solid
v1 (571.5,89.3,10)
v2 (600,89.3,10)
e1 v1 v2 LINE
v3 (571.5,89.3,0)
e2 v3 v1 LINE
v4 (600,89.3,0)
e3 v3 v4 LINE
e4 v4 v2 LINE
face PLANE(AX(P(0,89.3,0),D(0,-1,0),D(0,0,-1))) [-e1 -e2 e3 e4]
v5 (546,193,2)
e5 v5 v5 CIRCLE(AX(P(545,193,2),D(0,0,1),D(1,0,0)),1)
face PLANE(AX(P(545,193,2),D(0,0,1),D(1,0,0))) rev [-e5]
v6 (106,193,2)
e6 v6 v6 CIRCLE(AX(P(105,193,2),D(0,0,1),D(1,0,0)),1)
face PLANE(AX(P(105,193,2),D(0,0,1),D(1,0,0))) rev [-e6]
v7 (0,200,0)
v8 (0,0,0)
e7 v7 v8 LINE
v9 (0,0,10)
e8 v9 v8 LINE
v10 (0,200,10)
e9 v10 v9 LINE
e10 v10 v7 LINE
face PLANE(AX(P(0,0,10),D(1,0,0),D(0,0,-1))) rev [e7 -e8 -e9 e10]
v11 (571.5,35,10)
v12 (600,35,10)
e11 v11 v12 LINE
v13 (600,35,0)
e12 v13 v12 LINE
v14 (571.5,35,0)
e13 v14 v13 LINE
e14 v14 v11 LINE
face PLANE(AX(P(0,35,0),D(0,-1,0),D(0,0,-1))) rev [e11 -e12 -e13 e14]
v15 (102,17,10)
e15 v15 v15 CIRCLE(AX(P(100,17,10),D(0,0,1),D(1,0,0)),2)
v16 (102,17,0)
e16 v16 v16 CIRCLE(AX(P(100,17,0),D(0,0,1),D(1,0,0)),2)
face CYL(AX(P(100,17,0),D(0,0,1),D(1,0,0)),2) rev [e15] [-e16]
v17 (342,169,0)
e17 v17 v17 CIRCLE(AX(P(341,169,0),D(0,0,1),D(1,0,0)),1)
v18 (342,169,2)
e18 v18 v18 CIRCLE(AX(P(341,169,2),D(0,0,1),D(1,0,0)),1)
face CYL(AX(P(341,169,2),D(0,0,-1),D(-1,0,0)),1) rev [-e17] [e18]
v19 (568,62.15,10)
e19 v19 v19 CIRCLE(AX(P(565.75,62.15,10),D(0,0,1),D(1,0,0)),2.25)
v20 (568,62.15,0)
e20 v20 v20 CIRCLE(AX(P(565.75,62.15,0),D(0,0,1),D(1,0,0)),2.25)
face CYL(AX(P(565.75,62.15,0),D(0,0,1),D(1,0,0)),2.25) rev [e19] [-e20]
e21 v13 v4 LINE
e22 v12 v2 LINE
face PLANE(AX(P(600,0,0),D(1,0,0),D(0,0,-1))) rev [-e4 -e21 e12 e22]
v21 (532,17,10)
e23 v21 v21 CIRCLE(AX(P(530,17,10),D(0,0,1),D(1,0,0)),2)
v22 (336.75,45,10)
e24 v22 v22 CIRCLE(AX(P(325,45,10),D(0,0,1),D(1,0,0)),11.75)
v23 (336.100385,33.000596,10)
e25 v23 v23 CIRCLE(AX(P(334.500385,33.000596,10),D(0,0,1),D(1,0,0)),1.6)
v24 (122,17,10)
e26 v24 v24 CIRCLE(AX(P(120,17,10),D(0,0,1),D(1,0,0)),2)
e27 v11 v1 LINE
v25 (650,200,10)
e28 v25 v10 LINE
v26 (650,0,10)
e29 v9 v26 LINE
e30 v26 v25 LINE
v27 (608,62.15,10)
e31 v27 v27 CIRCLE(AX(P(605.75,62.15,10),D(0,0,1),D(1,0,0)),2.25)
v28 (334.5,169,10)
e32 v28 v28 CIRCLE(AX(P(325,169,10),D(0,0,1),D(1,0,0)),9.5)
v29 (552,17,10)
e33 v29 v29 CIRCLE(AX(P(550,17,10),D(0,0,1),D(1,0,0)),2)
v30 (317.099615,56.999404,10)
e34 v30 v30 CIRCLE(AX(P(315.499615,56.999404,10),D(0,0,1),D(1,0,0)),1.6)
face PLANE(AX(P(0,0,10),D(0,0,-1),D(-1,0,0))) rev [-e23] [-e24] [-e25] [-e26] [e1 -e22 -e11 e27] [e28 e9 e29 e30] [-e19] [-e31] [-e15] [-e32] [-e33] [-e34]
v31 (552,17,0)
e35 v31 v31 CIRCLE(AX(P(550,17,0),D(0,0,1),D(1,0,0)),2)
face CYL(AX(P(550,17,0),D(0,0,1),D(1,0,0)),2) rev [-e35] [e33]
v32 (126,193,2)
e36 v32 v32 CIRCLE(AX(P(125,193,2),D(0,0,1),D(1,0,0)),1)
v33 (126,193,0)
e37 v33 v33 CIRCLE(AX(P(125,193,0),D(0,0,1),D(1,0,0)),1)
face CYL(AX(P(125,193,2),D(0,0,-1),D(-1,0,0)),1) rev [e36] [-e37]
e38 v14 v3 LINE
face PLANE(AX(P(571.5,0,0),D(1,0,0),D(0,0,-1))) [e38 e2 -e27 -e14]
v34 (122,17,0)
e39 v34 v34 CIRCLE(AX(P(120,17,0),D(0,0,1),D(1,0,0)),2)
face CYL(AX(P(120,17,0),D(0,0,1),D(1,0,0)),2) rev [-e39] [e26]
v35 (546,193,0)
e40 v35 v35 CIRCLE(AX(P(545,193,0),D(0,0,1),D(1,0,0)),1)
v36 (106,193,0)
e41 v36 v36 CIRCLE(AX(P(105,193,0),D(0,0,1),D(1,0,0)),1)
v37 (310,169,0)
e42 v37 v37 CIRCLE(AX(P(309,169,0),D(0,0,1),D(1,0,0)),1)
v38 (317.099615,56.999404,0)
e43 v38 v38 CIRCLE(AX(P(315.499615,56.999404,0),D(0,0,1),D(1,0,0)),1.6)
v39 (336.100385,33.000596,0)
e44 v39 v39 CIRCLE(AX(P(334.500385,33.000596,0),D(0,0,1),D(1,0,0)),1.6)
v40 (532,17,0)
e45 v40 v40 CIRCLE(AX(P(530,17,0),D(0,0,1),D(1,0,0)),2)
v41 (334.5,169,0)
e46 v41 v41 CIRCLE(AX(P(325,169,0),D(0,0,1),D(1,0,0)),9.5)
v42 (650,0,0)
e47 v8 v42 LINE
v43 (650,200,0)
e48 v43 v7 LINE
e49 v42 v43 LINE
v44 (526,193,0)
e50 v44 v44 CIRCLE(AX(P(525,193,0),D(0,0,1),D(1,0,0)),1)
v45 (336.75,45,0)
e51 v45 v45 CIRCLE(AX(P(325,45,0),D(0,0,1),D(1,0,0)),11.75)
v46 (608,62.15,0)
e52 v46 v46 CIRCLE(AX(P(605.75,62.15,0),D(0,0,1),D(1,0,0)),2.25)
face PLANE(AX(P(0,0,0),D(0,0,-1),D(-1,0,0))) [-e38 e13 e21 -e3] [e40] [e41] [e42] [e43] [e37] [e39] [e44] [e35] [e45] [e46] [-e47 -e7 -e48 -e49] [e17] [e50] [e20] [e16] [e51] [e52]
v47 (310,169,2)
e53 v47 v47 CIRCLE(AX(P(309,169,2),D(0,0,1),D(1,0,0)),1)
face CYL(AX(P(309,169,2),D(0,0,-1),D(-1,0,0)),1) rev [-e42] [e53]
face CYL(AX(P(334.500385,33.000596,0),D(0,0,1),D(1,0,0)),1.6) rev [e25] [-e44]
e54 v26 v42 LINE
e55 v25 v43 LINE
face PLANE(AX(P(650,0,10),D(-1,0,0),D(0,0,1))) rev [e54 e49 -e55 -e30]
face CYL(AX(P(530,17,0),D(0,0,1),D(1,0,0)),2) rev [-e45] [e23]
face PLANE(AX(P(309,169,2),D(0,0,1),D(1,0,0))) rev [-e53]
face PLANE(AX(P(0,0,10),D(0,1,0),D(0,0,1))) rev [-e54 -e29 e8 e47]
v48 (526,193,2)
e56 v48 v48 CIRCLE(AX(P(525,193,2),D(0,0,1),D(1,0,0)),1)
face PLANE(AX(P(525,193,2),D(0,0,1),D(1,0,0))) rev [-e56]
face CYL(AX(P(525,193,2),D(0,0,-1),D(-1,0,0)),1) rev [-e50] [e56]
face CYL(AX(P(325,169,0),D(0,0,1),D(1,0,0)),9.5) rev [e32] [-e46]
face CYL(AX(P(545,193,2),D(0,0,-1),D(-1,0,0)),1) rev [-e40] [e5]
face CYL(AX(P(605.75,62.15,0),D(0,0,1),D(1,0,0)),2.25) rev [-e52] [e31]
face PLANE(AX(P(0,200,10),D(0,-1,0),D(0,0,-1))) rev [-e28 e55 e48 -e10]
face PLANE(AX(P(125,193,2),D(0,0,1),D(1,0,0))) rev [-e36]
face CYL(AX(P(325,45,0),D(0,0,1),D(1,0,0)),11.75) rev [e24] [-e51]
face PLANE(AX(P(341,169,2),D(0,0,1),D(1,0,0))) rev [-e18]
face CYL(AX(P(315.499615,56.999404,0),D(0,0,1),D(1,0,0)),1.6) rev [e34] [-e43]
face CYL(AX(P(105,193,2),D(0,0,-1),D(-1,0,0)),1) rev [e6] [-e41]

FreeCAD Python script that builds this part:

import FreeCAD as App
import Part
import Sketcher
from FreeCAD import Vector
Q = App.Units.Quantity

doc = App.newDocument("Part")
body = doc.addObject("PartDesign::Body", "Body")

sketch1 = doc.addObject("Sketcher::SketchObject", "Sketch")
body.addObject(sketch1)
sketch1.AttachmentSupport = (doc.XY_Plane, [""])
sketch1.MapMode = "FlatFace"
sketch1.addGeometry([
    Part.LineSegment(Vector(0, 200, 0), Vector(0, 0, 0)),
    Part.LineSegment(Vector(0, 0, 0), Vector(650, 0, 0)),
    Part.LineSegment(Vector(650, 0, 0), Vector(650, 200, 0)),
    Part.LineSegment(Vector(650, 200, 0), Vector(0, 200, 0)),
], False)
sketch1.addConstraint([
    Sketcher.Constraint("Coincident", 0, 2, 1, 1),
    Sketcher.Constraint("Coincident", 1, 2, 2, 1),
    Sketcher.Constraint("Coincident", 2, 2, 3, 1),
    Sketcher.Constraint("Coincident", 3, 2, 0, 1),
    Sketcher.Constraint("Vertical", 0),
    Sketcher.Constraint("Horizontal", 1),
    Sketcher.Constraint("Vertical", 2),
    Sketcher.Constraint("Horizontal", 3),
    Sketcher.Constraint("Coincident", 0, 2, -1, 1),
    Sketcher.Constraint("DistanceX", 1, 1, 1, 2, Q("650 mm")),
    Sketcher.Constraint("DistanceY", 0, 2, 0, 1, Q("200 mm")),
])
pad1 = doc.addObject("PartDesign::Pad", "Pad")
body.addObject(pad1)
pad1.Profile = sketch1
pad1.Length = 10

sketch2 = doc.addObject("Sketcher::SketchObject", "Sketch001")
body.addObject(sketch2)
sketch2.AttachmentSupport = (doc.XY_Plane, [""])
sketch2.MapMode = "FlatFace"
sketch2.AttachmentOffset = App.Placement(Vector(0, 0, 10), App.Rotation())
sketch2.addGeometry([
    Part.Circle(Vector(100, 17, 0), Vector(0, 0, 1), 2),
    Part.Circle(Vector(120, 17, 0), Vector(0, 0, 1), 2),
    Part.Circle(Vector(530, 17, 0), Vector(0, 0, 1), 2),
    Part.Circle(Vector(550, 17, 0), Vector(0, 0, 1), 2),
], False)
sketch2.addConstraint([
    Sketcher.Constraint("Equal", 0, 1),
    Sketcher.Constraint("Equal", 1, 2),
    Sketcher.Constraint("Equal", 2, 3),
    Sketcher.Constraint("Horizontal", 0, 3, 1, 3),
    Sketcher.Constraint("Horizontal", 1, 3, 2, 3),
    Sketcher.Constraint("Horizontal", 2, 3, 3, 3),
    Sketcher.Constraint("Diameter", 0, Q("4 mm")),
    Sketcher.Constraint("DistanceX", -1, 1, 0, 3, Q("100 mm")),
    Sketcher.Constraint("DistanceY", -1, 1, 0, 3, Q("17 mm")),
    Sketcher.Constraint("DistanceX", -1, 1, 1, 3, Q("120 mm")),
    Sketcher.Constraint("DistanceX", -1, 1, 2, 3, Q("530 mm")),
    Sketcher.Constraint("DistanceX", -1, 1, 3, 3, Q("550 mm")),
])
pocket1 = doc.addObject("PartDesign::Pocket", "Pocket")
body.addObject(pocket1)
pocket1.Profile = sketch2
pocket1.Length = 10

sketch3 = doc.addObject("Sketcher::SketchObject", "Sketch002")
body.addObject(sketch3)
sketch3.AttachmentSupport = (doc.XY_Plane, [""])
sketch3.MapMode = "FlatFace"
sketch3.AttachmentOffset = App.Placement(Vector(0, 0, 10), App.Rotation())
sketch3.addGeometry([
    Part.Circle(Vector(315.5, 57, 0), Vector(0, 0, 1), 1.6),
    Part.Circle(Vector(325, 45, 0), Vector(0, 0, 1), 11.8),
    Part.Circle(Vector(334.5, 33, 0), Vector(0, 0, 1), 1.6),
    Part.LineSegment(Vector(571.5, 89.3, 0), Vector(571.5, 35, 0)),
    Part.LineSegment(Vector(571.5, 35, 0), Vector(600, 35, 0)),
    Part.LineSegment(Vector(600, 35, 0), Vector(600, 89.3, 0)),
    Part.LineSegment(Vector(600, 89.3, 0), Vector(571.5, 89.3, 0)),
    Part.Circle(Vector(565.8, 62.1, 0), Vector(0, 0, 1), 2.2),
    Part.Circle(Vector(605.8, 62.1, 0), Vector(0, 0, 1), 2.2),
], False)
sketch3.addConstraint([
    Sketcher.Constraint("Coincident", 3, 2, 4, 1),
    Sketcher.Constraint("Coincident", 4, 2, 5, 1),
    Sketcher.Constraint("Coincident", 5, 2, 6, 1),
    Sketcher.Constraint("Coincident", 6, 2, 3, 1),
    Sketcher.Constraint("Vertical", 3),
    Sketcher.Constraint("Horizontal", 4),
    Sketcher.Constraint("Vertical", 5),
    Sketcher.Constraint("Horizontal", 6),
    Sketcher.Constraint("Equal", 0, 2),
    Sketcher.Constraint("Equal", 7, 8),
    Sketcher.Constraint("Horizontal", 7, 3, 8, 3),
    Sketcher.Constraint("Diameter", 0, Q("3.2 mm")),
    Sketcher.Constraint("Diameter", 1, Q("23.5 mm")),
    Sketcher.Constraint("Diameter", 7, Q("4.5 mm")),
    Sketcher.Constraint("DistanceX", 4, 1, 4, 2, Q("28.5 mm")),
    Sketcher.Constraint("DistanceY", 3, 2, 3, 1, Q("54.3 mm")),
    Sketcher.Constraint("DistanceX", -1, 1, 1, 3, Q("325 mm")),
    Sketcher.Constraint("DistanceY", -1, 1, 1, 3, Q("45 mm")),
    Sketcher.Constraint("DistanceY", -1, 1, 3, 2, Q("35 mm")),
    Sketcher.Constraint("DistanceX", -1, 1, 4, 2, Q("600 mm")),
    Sketcher.Constraint("DistanceX", 7, 3, 8, 3, Q("40 mm")),
    Sketcher.Constraint("DistanceX", -1, 1, 7, 3, Q("565.75 mm")),
    Sketcher.Constraint("DistanceY", -1, 1, 7, 3, Q("62.15 mm")),
    Sketcher.Constraint("DistanceX", 0, 3, 2, 3, Q("19.00077 mm")),
    Sketcher.Constraint("DistanceY", 2, 3, 0, 3, Q("23.998809 mm")),
    Sketcher.Constraint("DistanceX", -1, 1, 0, 3, Q("315.499615 mm")),
    Sketcher.Constraint("DistanceY", -1, 1, 0, 3, Q("56.999404 mm")),
])
pocket2 = doc.addObject("PartDesign::Pocket", "Pocket001")
body.addObject(pocket2)
pocket2.Profile = sketch3
pocket2.Length = 10

sketch4 = doc.addObject("Sketcher::SketchObject", "Sketch003")
body.addObject(sketch4)
sketch4.AttachmentSupport = (doc.XY_Plane, [""])
sketch4.MapMode = "FlatFace"
sketch4.AttachmentOffset = App.Placement(Vector(0, 0, 10), App.Rotation())
sketch4.addGeometry(Part.Circle(Vector(325, 169, 0), Vector(0, 0, 1), 10), False)
sketch4.addConstraint([
    Sketcher.Constraint("Diameter", 0, Q("19 mm")),
    Sketcher.Constraint("DistanceX", -1, 1, 0, 3, Q("325 mm")),
    Sketcher.Constraint("DistanceY", -1, 1, 0, 3, Q("169 mm")),
])
pocket3 = doc.addObject("PartDesign::Pocket", "Pocket002")
body.addObject(pocket3)
pocket3.Profile = sketch4
pocket3.Length = 10

sketch5 = doc.addObject("Sketcher::SketchObject", "Sketch004")
body.addObject(sketch5)
sketch5.AttachmentSupport = (doc.XY_Plane, [""])
sketch5.MapMode = "FlatFace"
sketch5.addGeometry([
    Part.Circle(Vector(341, 169, 0), Vector(0, 0, 1), 1),
    Part.Circle(Vector(309, 169, 0), Vector(0, 0, 1), 1),
    Part.Circle(Vector(125, 193, 0), Vector(0, 0, 1), 1),
    Part.Circle(Vector(105, 193, 0), Vector(0, 0, 1), 1),
    Part.Circle(Vector(545, 193, 0), Vector(0, 0, 1), 1),
    Part.Circle(Vector(525, 193, 0), Vector(0, 0, 1), 1),
], False)
sketch5.addConstraint([
    Sketcher.Constraint("Equal", 0, 1),
    Sketcher.Constraint("Equal", 1, 2),
    Sketcher.Constraint("Equal", 2, 3),
    Sketcher.Constraint("Equal", 3, 4),
    Sketcher.Constraint("Equal", 4, 5),
    Sketcher.Constraint("Horizontal", 0, 3, 1, 3),
    Sketcher.Constraint("Horizontal", 2, 3, 3, 3),
    Sketcher.Constraint("Horizontal", 3, 3, 4, 3),
    Sketcher.Constraint("Horizontal", 4, 3, 5, 3),
    Sketcher.Constraint("Diameter", 0, Q("2 mm")),
    Sketcher.Constraint("DistanceX", -1, 1, 0, 3, Q("341 mm")),
    Sketcher.Constraint("DistanceY", -1, 1, 0, 3, Q("169 mm")),
    Sketcher.Constraint("DistanceX", -1, 1, 1, 3, Q("309 mm")),
    Sketcher.Constraint("DistanceX", -1, 1, 2, 3, Q("125 mm")),
    Sketcher.Constraint("DistanceY", -1, 1, 2, 3, Q("193 mm")),
    Sketcher.Constraint("DistanceX", -1, 1, 3, 3, Q("105 mm")),
    Sketcher.Constraint("DistanceX", -1, 1, 4, 3, Q("545 mm")),
    Sketcher.Constraint("DistanceX", -1, 1, 5, 3, Q("525 mm")),
])
pocket4 = doc.addObject("PartDesign::Pocket", "Pocket003")
body.addObject(pocket4)
pocket4.Profile = sketch5
pocket4.Length = 2
pocket4.Reversed = True

doc.recompute()
